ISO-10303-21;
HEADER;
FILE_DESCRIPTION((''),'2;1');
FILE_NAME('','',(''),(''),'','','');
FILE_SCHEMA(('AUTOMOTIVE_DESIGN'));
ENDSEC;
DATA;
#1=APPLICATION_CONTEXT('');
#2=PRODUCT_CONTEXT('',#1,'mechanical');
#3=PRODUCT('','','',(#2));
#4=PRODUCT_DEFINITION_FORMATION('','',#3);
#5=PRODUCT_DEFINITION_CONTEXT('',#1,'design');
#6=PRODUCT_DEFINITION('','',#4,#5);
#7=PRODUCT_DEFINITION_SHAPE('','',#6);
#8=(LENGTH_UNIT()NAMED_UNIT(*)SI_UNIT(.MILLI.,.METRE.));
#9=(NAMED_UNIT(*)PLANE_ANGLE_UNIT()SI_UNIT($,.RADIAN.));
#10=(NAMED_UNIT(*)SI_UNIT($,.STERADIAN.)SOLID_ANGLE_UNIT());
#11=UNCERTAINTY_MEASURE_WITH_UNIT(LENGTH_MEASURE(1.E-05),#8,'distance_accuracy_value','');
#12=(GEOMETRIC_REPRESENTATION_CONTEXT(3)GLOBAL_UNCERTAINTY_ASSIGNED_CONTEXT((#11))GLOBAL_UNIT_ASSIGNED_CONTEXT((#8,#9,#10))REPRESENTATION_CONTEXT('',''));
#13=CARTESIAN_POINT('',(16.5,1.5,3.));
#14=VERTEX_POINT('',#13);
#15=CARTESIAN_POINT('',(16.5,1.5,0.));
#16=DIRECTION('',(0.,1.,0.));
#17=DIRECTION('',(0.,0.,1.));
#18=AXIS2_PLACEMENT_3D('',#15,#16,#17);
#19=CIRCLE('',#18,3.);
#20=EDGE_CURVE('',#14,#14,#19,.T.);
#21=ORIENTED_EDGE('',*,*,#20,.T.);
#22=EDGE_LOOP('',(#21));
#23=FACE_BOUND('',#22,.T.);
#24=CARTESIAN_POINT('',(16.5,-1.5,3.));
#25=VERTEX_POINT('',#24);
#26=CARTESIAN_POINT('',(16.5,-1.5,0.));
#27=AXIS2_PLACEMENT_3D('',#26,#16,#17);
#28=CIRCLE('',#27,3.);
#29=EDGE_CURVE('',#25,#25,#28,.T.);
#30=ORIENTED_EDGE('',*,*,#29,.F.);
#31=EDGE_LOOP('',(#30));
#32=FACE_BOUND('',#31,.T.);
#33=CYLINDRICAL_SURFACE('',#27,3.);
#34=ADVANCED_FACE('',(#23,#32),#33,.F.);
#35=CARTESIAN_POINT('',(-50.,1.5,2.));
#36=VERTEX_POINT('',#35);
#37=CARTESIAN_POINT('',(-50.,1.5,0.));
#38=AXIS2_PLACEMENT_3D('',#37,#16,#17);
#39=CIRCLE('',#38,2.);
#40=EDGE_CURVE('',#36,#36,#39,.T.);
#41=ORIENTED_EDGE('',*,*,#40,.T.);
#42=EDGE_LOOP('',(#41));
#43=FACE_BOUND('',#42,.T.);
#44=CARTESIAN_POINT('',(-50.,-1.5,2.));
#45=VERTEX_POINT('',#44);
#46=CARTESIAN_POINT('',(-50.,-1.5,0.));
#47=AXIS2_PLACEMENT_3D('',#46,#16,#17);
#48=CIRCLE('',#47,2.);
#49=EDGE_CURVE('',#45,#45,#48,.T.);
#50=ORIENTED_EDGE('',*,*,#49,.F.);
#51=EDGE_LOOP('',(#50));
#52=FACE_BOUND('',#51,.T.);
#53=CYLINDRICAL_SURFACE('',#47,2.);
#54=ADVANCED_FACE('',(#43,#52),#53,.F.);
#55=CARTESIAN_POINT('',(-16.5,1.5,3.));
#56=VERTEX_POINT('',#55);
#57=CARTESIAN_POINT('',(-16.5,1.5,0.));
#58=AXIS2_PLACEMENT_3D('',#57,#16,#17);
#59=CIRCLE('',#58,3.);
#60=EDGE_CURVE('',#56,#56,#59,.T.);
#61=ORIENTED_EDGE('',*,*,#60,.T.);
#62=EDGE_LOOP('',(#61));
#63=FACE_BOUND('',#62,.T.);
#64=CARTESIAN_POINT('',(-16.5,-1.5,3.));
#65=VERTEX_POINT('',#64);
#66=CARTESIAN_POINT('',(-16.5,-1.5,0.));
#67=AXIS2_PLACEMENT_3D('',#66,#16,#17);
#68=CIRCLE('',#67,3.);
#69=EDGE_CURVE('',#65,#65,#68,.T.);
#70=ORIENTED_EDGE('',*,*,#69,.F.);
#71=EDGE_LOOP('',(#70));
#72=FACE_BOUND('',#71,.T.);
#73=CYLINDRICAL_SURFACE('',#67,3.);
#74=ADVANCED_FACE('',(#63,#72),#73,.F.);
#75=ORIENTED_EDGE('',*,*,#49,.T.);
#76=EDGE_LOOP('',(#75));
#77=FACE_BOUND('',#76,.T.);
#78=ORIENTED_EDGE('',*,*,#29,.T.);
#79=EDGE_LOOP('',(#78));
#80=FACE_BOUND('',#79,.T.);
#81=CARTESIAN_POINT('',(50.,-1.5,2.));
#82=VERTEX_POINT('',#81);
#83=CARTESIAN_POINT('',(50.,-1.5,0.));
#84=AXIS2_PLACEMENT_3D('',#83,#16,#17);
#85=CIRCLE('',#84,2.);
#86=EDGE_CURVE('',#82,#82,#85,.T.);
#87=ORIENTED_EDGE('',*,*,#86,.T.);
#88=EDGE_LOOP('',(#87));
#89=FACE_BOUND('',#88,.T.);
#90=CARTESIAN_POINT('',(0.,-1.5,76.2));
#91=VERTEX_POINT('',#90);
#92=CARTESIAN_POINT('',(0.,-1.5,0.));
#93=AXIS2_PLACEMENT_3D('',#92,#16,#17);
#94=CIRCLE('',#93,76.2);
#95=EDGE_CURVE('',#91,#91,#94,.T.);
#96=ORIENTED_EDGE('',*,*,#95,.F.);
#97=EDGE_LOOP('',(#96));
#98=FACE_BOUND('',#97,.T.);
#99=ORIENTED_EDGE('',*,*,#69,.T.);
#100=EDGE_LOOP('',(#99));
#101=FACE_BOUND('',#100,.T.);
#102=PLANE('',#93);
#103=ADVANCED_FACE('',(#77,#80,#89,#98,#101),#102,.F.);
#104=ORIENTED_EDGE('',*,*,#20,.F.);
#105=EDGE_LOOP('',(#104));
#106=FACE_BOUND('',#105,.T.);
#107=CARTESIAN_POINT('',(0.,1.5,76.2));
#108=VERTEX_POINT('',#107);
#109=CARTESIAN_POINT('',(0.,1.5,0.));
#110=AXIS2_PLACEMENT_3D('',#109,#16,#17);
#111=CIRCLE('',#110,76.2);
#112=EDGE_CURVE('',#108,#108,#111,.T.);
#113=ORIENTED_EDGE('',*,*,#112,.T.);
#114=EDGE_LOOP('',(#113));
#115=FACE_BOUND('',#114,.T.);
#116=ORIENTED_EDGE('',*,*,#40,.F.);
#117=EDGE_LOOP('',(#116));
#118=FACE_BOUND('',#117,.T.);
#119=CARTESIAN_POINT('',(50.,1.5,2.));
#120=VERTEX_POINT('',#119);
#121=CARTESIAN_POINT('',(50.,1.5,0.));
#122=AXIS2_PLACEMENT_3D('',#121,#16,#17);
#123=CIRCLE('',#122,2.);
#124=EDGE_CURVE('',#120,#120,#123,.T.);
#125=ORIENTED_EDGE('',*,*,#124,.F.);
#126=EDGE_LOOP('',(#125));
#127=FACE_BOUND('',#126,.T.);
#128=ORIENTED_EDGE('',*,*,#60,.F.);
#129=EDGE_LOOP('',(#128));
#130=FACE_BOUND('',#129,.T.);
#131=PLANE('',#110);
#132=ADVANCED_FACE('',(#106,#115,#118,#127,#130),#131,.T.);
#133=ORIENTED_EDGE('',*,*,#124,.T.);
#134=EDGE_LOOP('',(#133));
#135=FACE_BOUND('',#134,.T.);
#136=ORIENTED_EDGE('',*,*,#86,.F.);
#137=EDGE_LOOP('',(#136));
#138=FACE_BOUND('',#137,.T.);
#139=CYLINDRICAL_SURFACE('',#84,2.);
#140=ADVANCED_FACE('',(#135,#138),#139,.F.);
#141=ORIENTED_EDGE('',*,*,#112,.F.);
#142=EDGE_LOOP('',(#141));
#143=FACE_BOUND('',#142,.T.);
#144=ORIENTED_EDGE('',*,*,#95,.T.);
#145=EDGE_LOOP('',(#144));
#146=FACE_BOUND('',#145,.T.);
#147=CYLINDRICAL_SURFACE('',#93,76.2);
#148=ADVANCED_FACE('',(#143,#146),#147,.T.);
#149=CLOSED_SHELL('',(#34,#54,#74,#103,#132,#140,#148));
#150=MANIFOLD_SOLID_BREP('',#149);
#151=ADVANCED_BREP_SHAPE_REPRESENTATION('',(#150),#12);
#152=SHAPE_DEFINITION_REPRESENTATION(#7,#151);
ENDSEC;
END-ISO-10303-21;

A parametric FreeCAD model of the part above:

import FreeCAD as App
import Part
import Sketcher

doc = App.newDocument("Part")
body = doc.addObject("PartDesign::Body", "Body")

sketch1 = body.newObject("Sketcher::SketchObject", "Sketch")
sketch1.AttachmentSupport = (doc.getObject("XZ_Plane"), [""])
sketch1.MapMode = "FlatFace"
sketch1.addGeometry([
    Part.Circle(App.Vector(0, 0, 0), App.Vector(0, 0, 1), 76.2),
    Part.Circle(App.Vector(-50, 0, 0), App.Vector(0, 0, 1), 2),
    Part.Circle(App.Vector(-16.5, 0, 0), App.Vector(0, 0, 1), 3),
    Part.Circle(App.Vector(16.5, 0, 0), App.Vector(0, 0, 1), 3),
    Part.Circle(App.Vector(50, 0, 0), App.Vector(0, 0, 1), 2),
], False)
sketch1.addConstraint([
    Sketcher.Constraint("Coincident", 0, 3, -1, 1),
    Sketcher.Constraint("Equal", 2, 3),
    Sketcher.Constraint("Equal", 1, 4),
    Sketcher.Constraint("Symmetric", 2, 3, 3, 3, -1, 1),
    Sketcher.Constraint("Symmetric", 1, 3, 4, 3, -1, 1),
    Sketcher.Constraint("PointOnObject", 1, 3, -1),
    Sketcher.Constraint("PointOnObject", 2, 3, -1),
    Sketcher.Constraint("Diameter", 1, 4.0),
    Sketcher.Constraint("Diameter", 2, 6.0),
    Sketcher.Constraint("Diameter", 0, 152.4),
    Sketcher.Constraint("DistanceX", 1, 3, -1, 1, 50.0),
    Sketcher.Constraint("DistanceX", 2, 3, 3, 3, 33.0),
])
pad1 = body.newObject("PartDesign::Pad", "Pad")
pad1.Profile = sketch1
pad1.Type = "TwoLengths"
pad1.Length = 1.5
pad1.Length2 = 1.5
pad1.Reversed = True

doc.recompute()
